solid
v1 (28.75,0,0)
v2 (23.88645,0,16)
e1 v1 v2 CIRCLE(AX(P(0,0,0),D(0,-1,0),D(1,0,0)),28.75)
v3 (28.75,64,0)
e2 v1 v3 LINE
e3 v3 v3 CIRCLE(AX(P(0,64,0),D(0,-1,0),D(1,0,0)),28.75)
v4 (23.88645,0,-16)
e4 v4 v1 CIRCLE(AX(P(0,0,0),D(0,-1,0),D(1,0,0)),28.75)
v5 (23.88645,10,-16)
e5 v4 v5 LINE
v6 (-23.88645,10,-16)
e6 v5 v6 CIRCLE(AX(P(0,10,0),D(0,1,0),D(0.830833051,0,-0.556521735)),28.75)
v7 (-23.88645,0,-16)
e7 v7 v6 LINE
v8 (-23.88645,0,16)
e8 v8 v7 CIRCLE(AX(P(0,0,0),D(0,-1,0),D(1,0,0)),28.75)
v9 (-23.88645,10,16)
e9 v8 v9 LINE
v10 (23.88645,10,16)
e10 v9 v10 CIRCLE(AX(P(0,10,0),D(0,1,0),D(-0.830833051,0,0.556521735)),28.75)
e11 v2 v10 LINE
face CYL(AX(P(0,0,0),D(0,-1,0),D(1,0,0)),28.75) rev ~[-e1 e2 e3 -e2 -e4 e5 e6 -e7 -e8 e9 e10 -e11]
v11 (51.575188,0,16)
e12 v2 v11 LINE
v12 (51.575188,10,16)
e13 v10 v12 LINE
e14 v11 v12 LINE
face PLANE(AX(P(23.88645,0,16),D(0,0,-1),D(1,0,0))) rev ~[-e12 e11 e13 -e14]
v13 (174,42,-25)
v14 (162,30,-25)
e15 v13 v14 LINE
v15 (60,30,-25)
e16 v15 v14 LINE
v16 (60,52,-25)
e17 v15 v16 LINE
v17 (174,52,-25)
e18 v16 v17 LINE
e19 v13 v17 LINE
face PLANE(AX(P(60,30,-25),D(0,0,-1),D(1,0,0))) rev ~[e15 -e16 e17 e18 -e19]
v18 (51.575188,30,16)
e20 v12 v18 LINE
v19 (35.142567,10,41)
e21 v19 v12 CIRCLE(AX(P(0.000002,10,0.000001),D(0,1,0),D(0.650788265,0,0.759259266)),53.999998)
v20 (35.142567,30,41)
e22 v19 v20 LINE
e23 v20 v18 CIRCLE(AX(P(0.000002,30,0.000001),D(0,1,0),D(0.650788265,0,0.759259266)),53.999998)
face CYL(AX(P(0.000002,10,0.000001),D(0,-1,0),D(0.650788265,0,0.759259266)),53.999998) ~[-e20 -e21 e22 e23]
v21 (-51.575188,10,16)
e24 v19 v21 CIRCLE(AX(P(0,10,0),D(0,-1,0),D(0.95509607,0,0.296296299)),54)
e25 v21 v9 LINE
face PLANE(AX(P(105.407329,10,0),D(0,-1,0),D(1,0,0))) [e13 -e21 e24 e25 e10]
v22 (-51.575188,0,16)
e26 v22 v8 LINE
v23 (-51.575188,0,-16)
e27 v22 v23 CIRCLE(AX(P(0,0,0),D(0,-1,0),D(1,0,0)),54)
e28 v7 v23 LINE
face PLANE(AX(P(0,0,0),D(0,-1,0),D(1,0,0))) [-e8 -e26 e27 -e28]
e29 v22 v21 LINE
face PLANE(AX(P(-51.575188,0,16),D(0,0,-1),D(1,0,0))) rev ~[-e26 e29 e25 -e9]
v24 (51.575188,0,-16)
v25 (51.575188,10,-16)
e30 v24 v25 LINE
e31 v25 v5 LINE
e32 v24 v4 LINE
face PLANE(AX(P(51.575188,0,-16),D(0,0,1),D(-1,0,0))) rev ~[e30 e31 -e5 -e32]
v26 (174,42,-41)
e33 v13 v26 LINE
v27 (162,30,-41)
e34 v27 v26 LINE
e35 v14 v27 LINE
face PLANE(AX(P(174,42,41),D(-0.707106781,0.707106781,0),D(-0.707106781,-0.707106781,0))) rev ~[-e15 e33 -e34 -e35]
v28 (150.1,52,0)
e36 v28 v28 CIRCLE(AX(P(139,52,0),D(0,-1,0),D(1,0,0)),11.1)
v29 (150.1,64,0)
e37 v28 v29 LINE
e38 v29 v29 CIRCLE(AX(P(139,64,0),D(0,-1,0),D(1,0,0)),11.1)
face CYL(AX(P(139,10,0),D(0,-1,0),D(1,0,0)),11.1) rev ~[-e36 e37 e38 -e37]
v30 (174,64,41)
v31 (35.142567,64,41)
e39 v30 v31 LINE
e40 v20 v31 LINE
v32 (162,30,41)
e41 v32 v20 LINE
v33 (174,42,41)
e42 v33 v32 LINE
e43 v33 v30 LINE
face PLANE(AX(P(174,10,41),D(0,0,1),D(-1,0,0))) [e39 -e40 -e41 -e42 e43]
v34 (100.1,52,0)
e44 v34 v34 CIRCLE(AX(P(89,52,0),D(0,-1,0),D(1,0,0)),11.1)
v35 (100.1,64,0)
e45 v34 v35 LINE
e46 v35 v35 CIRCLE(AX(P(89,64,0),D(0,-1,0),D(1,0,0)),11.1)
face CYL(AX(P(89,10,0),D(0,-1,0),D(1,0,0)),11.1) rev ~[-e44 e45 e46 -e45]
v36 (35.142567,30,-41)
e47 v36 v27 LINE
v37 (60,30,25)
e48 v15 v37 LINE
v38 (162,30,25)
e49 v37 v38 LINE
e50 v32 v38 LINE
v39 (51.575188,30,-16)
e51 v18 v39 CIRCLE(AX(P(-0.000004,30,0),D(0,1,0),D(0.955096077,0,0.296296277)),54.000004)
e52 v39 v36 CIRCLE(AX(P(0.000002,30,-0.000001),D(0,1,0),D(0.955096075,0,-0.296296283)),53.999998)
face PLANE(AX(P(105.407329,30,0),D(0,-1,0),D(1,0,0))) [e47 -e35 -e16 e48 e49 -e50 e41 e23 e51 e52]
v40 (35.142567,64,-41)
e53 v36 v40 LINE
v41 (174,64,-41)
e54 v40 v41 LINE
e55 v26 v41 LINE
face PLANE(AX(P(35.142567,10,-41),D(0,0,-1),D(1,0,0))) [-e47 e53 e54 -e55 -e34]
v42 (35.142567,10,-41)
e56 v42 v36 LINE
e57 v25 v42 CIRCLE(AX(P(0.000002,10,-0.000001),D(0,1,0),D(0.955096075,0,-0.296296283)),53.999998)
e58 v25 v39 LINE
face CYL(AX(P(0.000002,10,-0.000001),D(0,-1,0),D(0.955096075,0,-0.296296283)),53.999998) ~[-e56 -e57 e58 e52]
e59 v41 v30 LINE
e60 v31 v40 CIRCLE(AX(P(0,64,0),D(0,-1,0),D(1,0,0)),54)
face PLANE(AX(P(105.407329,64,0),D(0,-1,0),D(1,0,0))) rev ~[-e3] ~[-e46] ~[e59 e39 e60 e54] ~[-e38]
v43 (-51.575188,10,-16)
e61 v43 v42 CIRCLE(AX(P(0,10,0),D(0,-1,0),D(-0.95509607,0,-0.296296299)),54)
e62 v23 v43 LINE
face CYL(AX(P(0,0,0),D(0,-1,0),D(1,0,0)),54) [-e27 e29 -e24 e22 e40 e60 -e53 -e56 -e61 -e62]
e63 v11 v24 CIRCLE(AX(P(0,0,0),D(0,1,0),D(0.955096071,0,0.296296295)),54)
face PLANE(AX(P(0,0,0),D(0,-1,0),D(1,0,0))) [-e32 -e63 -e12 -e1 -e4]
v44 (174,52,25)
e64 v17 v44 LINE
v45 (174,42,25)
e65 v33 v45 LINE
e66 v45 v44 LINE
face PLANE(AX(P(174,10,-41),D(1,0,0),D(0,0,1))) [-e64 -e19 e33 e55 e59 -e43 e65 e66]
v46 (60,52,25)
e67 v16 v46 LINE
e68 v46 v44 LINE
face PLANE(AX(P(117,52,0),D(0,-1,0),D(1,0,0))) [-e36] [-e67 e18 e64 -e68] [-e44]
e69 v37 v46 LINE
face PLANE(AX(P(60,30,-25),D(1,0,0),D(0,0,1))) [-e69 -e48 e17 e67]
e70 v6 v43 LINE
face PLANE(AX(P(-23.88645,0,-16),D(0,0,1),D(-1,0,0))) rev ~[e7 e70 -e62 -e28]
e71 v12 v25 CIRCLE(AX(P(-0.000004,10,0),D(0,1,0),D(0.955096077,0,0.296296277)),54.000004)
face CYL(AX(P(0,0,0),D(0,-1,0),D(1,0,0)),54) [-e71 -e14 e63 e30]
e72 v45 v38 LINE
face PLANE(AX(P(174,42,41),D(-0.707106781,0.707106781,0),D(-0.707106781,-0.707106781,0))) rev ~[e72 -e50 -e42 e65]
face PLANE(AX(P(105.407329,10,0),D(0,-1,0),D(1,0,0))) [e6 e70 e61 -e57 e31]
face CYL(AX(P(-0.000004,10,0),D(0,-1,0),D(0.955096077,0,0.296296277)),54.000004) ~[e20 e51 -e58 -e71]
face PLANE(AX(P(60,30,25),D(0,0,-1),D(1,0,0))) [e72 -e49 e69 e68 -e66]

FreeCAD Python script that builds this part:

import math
import FreeCAD as App
import Part
import Sketcher

V = App.Vector


def add_polygon(sketch, points):
    """Adds a closed chain of lines whose ends are joined by coincident constraints."""
    first, n = sketch.GeometryCount, len(points)
    for a, b in zip(points, points[1:] + points[:1]):
        sketch.addGeometry(Part.LineSegment(App.Vector(*a, 0), App.Vector(*b, 0)), False)
    for i in range(n):
        sketch.addConstraint(Sketcher.Constraint("Coincident", first + i, 2, first + (i + 1) % n, 1))

doc = App.newDocument("Part")
body = doc.addObject("PartDesign::Body", "Body")

# Sketch on XZ plane
sketch1 = body.newObject("Sketcher::SketchObject", "Sketch")
sketch1.AttachmentSupport = (doc.getObject("XZ_Plane"), [""])
sketch1.MapMode = "FlatFace"
sketch1.addGeometry([
    Part.Circle(V(0, 0, 0), V(0, 0, 1), 54),
    Part.Circle(V(0, 0, 0), V(0, 0, 1), 29),
], False)
sketch1.addConstraint([
    Sketcher.Constraint("Coincident", 0, 3, -1, 1),
    Sketcher.Constraint("Coincident", 1, 3, -1, 1),
    Sketcher.Constraint("Diameter", 0, 108.0),
    Sketcher.Constraint("Diameter", 1, 57.5),
])
pad1 = body.newObject("PartDesign::Pad", "Pad")
pad1.Profile = sketch1
pad1.Length = 64
pad1.Reversed = True

# Sketch on XZ plane
sketch2 = body.newObject("Sketcher::SketchObject", "Sketch001")
sketch2.AttachmentSupport = (doc.getObject("XZ_Plane"), [""])
sketch2.MapMode = "FlatFace"
sketch2.addGeometry([
    Part.ArcOfCircle(Part.Circle(V(0, 0, 0), V(0, 0, 1), 29), math.radians(-146), math.radians(-34)),  # 0
    Part.LineSegment(V(-24, -16, 0), V(-52, -16, 0)),  # 1
    Part.ArcOfCircle(Part.Circle(V(0, 0, 0), V(0, 0, 1), 54), math.radians(-163), math.radians(-17)),  # 2
    Part.LineSegment(V(52, -16, 0), V(24, -16, 0)),  # 3
    Part.ArcOfCircle(Part.Circle(V(0, 0, 0), V(0, 0, 1), 54), math.radians(17), math.radians(163)),  # 4
    Part.LineSegment(V(-52, 16, 0), V(-24, 16, 0)),  # 5
    Part.ArcOfCircle(Part.Circle(V(0, 0, 0), V(0, 0, 1), 29), math.radians(34), math.radians(146)),  # 6
    Part.LineSegment(V(24, 16, 0), V(52, 16, 0)),  # 7
], False)
sketch2.addConstraint([
    Sketcher.Constraint("Coincident", 0, 1, 1, 1),
    Sketcher.Constraint("Coincident", 1, 2, 2, 1),
    Sketcher.Constraint("Coincident", 2, 2, 3, 1),
    Sketcher.Constraint("Coincident", 3, 2, 0, 2),
    Sketcher.Constraint("Coincident", 4, 2, 5, 1),
    Sketcher.Constraint("Coincident", 5, 2, 6, 2),
    Sketcher.Constraint("Coincident", 6, 1, 7, 1),
    Sketcher.Constraint("Coincident", 7, 2, 4, 1),
    Sketcher.Constraint("Horizontal", 1),
    Sketcher.Constraint("Horizontal", 3),
    Sketcher.Constraint("Horizontal", 5),
    Sketcher.Constraint("Horizontal", 7),
    Sketcher.Constraint("Coincident", 0, 3, -1, 1),
    Sketcher.Constraint("Coincident", 2, 3, -1, 1),
    Sketcher.Constraint("Coincident", 4, 3, -1, 1),
    Sketcher.Constraint("Coincident", 6, 3, -1, 1),
    Sketcher.Constraint("Equal", 2, 4),
    Sketcher.Constraint("Equal", 0, 6),
    Sketcher.Constraint("Horizontal", 1, 2, 2, 2),
    Sketcher.Constraint("Horizontal", 5, 2, 6, 1),
    Sketcher.Constraint("Vertical", 1, 2, 4, 2),
    Sketcher.Constraint("Radius", 2, 54.0),
    Sketcher.Constraint("Radius", 0, 28.75),
    Sketcher.Constraint("DistanceY", 0, 1, -1, 1, 16.0),
])
pocket1 = body.newObject("PartDesign::Pocket", "Pocket")
pocket1.Profile = sketch2
pocket1.Length = 10

# Sketch on XZ plane
sketch3 = body.newObject("Sketcher::SketchObject", "Sketch002")
sketch3.AttachmentSupport = (doc.getObject("XZ_Plane"), [""])
sketch3.MapMode = "FlatFace"
sketch3.AttachmentOffset = App.Placement(V(0, 0, -10), App.Rotation())
sketch3.addGeometry([
    Part.ArcOfCircle(Part.Circle(V(0, 0, 0), V(0, 0, 1), 54), math.radians(-49), math.radians(-17)),  # 0
    Part.LineSegment(V(35, -41, 0), V(174, -41, 0)),  # 1
    Part.LineSegment(V(174, -41, 0), V(174, 41, 0)),  # 2
    Part.LineSegment(V(174, 41, 0), V(35, 41, 0)),  # 3
    Part.ArcOfCircle(Part.Circle(V(0, 0, 0), V(0, 0, 1), 54), math.radians(17), math.radians(49)),  # 4
    Part.ArcOfCircle(Part.Circle(V(0, 0, 0), V(0, 0, 1), 54), math.radians(-17), math.radians(17)),  # 5
    Part.Circle(V(89, 0, 0), V(0, 0, 1), 11),  # 6
    Part.Circle(V(139, 0, 0), V(0, 0, 1), 11),  # 7
], False)
sketch3.addConstraint([
    Sketcher.Constraint("Coincident", 0, 1, 1, 1),
    Sketcher.Constraint("Coincident", 1, 2, 2, 1),
    Sketcher.Constraint("Coincident", 2, 2, 3, 1),
    Sketcher.Constraint("Coincident", 3, 2, 4, 2),
    Sketcher.Constraint("Tangent", 4, 1, 5, 2),
    Sketcher.Constraint("Tangent", 5, 1, 0, 2),
    Sketcher.Constraint("Horizontal", 1),
    Sketcher.Constraint("Vertical", 2),
    Sketcher.Constraint("Horizontal", 3),
    Sketcher.Constraint("Coincident", 0, 3, -1, 1),
    Sketcher.Constraint("Coincident", 4, 3, -1, 1),
    Sketcher.Constraint("Equal", 6, 7),
    Sketcher.Constraint("PointOnObject", 6, 3, -1),
    Sketcher.Constraint("PointOnObject", 7, 3, -1),
    Sketcher.Constraint("Vertical", 0, 1, 3, 2),
    Sketcher.Constraint("Vertical", 4, 1, 5, 1),
    Sketcher.Constraint("Diameter", 6, 22.2),
    Sketcher.Constraint("DistanceY", 2, 1, 2, 2, 82.0),
    Sketcher.Constraint("DistanceX", -1, 1, 6, 3, 89.0),
    Sketcher.Constraint("DistanceX", -1, 1, 7, 3, 139.0),
    Sketcher.Constraint("DistanceX", -1, 1, 1, 2, 174.0),
    Sketcher.Constraint("DistanceY", -1, 1, 4, 1, 16.0),
    Sketcher.Constraint("Radius", 0, 53.999998),
])
pad2 = body.newObject("PartDesign::Pad", "Pad001")
pad2.Profile = sketch3
pad2.Length = 54
pad2.Reversed = True

# Sketch on XZ plane
sketch4 = body.newObject("Sketcher::SketchObject", "Sketch003")
sketch4.AttachmentSupport = (doc.getObject("XZ_Plane"), [""])
sketch4.MapMode = "FlatFace"
sketch4.AttachmentOffset = App.Placement(V(0, 0, -10), App.Rotation())
sketch4.addGeometry([
    Part.ArcOfCircle(Part.Circle(V(0, 0, 0), V(0, 0, 1), 54), math.radians(-49), math.radians(-17)),  # 0
    Part.LineSegment(V(35, -41, 0), V(174, -41, 0)),  # 1
    Part.LineSegment(V(174, -41, 0), V(174, 41, 0)),  # 2
    Part.LineSegment(V(174, 41, 0), V(35, 41, 0)),  # 3
    Part.ArcOfCircle(Part.Circle(V(0, 0, 0), V(0, 0, 1), 54), math.radians(17), math.radians(49)),  # 4
    Part.ArcOfCircle(Part.Circle(V(0, 0, 0), V(0, 0, 1), 54), math.radians(-17), math.radians(17)),  # 5
    Part.Circle(V(89, 0, 0), V(0, 0, 1), 11),  # 6
    Part.Circle(V(139, 0, 0), V(0, 0, 1), 11),  # 7
], False)
sketch4.addConstraint([
    Sketcher.Constraint("Coincident", 0, 1, 1, 1),
    Sketcher.Constraint("Coincident", 1, 2, 2, 1),
    Sketcher.Constraint("Coincident", 2, 2, 3, 1),
    Sketcher.Constraint("Coincident", 3, 2, 4, 2),
    Sketcher.Constraint("Tangent", 4, 1, 5, 2),
    Sketcher.Constraint("Tangent", 5, 1, 0, 2),
    Sketcher.Constraint("Horizontal", 1),
    Sketcher.Constraint("Vertical", 2),
    Sketcher.Constraint("Horizontal", 3),
    Sketcher.Constraint("Coincident", 0, 3, -1, 1),
    Sketcher.Constraint("Coincident", 4, 3, -1, 1),
    Sketcher.Constraint("Equal", 6, 7),
    Sketcher.Constraint("PointOnObject", 6, 3, -1),
    Sketcher.Constraint("PointOnObject", 7, 3, -1),
    Sketcher.Constraint("Vertical", 0, 1, 3, 2),
    Sketcher.Constraint("Vertical", 4, 1, 5, 1),
    Sketcher.Constraint("Diameter", 6, 22.2),
    Sketcher.Constraint("DistanceY", 2, 1, 2, 2, 82.0),
    Sketcher.Constraint("DistanceX", -1, 1, 6, 3, 89.0),
    Sketcher.Constraint("DistanceX", -1, 1, 7, 3, 139.0),
    Sketcher.Constraint("DistanceX", -1, 1, 1, 2, 174.0),
    Sketcher.Constraint("DistanceY", -1, 1, 4, 1, 16.0),
    Sketcher.Constraint("Radius", 0, 53.999998),
])
pocket2 = body.newObject("PartDesign::Pocket", "Pocket001")
pocket2.Profile = sketch4
pocket2.Length = 20

# Sketch on XY plane
sketch5 = body.newObject("Sketcher::SketchObject", "Sketch004")
sketch5.AttachmentSupport = (doc.getObject("XY_Plane"), [""])
sketch5.MapMode = "FlatFace"
sketch5.AttachmentOffset = App.Placement(V(0, 0, 41), App.Rotation())
add_polygon(sketch5, [(174, 42), (162, 30), (174, 30)])  # lines 0-2
sketch5.addConstraint([
    Sketcher.Constraint("Horizontal", 1),
    Sketcher.Constraint("Vertical", 2),
    Sketcher.Constraint("Equal", 1, 2),
    Sketcher.Constraint("DistanceX", 1, 1, 1, 2, 12.0),
    Sketcher.Constraint("DistanceX", -1, 1, 0, 2, 162.0),
    Sketcher.Constraint("DistanceY", -1, 1, 0, 2, 30.0),
])
pocket3 = body.newObject("PartDesign::Pocket", "Pocket002")
pocket3.Profile = sketch5
pocket3.Type = "ThroughAll"

# Sketch on XZ plane
sketch6 = body.newObject("Sketcher::SketchObject", "Sketch005")
sketch6.AttachmentSupport = (doc.getObject("XZ_Plane"), [""])
sketch6.MapMode = "FlatFace"
sketch6.AttachmentOffset = App.Placement(V(0, 0, -30), App.Rotation())
add_polygon(sketch6, [(60, 25), (60, -25), (174, -25), (174, 25)])  # lines 0-3
sketch6.addConstraint([
    Sketcher.Constraint("Vertical", 0),
    Sketcher.Constraint("Horizontal", 1),
    Sketcher.Constraint("Vertical", 2),
    Sketcher.Constraint("Horizontal", 3),
    Sketcher.Constraint("DistanceX", 1, 1, 1, 2, 114.0),
    Sketcher.Constraint("DistanceY", 0, 2, 0, 1, 50.0),
    Sketcher.Constraint("DistanceX", -1, 1, 0, 2, 60.0),
    Sketcher.Constraint("DistanceY", 0, 2, -1, 1, 25.0),
])
pocket4 = body.newObject("PartDesign::Pocket", "Pocket003")
pocket4.Profile = sketch6
pocket4.Length = 22

doc.recompute()
